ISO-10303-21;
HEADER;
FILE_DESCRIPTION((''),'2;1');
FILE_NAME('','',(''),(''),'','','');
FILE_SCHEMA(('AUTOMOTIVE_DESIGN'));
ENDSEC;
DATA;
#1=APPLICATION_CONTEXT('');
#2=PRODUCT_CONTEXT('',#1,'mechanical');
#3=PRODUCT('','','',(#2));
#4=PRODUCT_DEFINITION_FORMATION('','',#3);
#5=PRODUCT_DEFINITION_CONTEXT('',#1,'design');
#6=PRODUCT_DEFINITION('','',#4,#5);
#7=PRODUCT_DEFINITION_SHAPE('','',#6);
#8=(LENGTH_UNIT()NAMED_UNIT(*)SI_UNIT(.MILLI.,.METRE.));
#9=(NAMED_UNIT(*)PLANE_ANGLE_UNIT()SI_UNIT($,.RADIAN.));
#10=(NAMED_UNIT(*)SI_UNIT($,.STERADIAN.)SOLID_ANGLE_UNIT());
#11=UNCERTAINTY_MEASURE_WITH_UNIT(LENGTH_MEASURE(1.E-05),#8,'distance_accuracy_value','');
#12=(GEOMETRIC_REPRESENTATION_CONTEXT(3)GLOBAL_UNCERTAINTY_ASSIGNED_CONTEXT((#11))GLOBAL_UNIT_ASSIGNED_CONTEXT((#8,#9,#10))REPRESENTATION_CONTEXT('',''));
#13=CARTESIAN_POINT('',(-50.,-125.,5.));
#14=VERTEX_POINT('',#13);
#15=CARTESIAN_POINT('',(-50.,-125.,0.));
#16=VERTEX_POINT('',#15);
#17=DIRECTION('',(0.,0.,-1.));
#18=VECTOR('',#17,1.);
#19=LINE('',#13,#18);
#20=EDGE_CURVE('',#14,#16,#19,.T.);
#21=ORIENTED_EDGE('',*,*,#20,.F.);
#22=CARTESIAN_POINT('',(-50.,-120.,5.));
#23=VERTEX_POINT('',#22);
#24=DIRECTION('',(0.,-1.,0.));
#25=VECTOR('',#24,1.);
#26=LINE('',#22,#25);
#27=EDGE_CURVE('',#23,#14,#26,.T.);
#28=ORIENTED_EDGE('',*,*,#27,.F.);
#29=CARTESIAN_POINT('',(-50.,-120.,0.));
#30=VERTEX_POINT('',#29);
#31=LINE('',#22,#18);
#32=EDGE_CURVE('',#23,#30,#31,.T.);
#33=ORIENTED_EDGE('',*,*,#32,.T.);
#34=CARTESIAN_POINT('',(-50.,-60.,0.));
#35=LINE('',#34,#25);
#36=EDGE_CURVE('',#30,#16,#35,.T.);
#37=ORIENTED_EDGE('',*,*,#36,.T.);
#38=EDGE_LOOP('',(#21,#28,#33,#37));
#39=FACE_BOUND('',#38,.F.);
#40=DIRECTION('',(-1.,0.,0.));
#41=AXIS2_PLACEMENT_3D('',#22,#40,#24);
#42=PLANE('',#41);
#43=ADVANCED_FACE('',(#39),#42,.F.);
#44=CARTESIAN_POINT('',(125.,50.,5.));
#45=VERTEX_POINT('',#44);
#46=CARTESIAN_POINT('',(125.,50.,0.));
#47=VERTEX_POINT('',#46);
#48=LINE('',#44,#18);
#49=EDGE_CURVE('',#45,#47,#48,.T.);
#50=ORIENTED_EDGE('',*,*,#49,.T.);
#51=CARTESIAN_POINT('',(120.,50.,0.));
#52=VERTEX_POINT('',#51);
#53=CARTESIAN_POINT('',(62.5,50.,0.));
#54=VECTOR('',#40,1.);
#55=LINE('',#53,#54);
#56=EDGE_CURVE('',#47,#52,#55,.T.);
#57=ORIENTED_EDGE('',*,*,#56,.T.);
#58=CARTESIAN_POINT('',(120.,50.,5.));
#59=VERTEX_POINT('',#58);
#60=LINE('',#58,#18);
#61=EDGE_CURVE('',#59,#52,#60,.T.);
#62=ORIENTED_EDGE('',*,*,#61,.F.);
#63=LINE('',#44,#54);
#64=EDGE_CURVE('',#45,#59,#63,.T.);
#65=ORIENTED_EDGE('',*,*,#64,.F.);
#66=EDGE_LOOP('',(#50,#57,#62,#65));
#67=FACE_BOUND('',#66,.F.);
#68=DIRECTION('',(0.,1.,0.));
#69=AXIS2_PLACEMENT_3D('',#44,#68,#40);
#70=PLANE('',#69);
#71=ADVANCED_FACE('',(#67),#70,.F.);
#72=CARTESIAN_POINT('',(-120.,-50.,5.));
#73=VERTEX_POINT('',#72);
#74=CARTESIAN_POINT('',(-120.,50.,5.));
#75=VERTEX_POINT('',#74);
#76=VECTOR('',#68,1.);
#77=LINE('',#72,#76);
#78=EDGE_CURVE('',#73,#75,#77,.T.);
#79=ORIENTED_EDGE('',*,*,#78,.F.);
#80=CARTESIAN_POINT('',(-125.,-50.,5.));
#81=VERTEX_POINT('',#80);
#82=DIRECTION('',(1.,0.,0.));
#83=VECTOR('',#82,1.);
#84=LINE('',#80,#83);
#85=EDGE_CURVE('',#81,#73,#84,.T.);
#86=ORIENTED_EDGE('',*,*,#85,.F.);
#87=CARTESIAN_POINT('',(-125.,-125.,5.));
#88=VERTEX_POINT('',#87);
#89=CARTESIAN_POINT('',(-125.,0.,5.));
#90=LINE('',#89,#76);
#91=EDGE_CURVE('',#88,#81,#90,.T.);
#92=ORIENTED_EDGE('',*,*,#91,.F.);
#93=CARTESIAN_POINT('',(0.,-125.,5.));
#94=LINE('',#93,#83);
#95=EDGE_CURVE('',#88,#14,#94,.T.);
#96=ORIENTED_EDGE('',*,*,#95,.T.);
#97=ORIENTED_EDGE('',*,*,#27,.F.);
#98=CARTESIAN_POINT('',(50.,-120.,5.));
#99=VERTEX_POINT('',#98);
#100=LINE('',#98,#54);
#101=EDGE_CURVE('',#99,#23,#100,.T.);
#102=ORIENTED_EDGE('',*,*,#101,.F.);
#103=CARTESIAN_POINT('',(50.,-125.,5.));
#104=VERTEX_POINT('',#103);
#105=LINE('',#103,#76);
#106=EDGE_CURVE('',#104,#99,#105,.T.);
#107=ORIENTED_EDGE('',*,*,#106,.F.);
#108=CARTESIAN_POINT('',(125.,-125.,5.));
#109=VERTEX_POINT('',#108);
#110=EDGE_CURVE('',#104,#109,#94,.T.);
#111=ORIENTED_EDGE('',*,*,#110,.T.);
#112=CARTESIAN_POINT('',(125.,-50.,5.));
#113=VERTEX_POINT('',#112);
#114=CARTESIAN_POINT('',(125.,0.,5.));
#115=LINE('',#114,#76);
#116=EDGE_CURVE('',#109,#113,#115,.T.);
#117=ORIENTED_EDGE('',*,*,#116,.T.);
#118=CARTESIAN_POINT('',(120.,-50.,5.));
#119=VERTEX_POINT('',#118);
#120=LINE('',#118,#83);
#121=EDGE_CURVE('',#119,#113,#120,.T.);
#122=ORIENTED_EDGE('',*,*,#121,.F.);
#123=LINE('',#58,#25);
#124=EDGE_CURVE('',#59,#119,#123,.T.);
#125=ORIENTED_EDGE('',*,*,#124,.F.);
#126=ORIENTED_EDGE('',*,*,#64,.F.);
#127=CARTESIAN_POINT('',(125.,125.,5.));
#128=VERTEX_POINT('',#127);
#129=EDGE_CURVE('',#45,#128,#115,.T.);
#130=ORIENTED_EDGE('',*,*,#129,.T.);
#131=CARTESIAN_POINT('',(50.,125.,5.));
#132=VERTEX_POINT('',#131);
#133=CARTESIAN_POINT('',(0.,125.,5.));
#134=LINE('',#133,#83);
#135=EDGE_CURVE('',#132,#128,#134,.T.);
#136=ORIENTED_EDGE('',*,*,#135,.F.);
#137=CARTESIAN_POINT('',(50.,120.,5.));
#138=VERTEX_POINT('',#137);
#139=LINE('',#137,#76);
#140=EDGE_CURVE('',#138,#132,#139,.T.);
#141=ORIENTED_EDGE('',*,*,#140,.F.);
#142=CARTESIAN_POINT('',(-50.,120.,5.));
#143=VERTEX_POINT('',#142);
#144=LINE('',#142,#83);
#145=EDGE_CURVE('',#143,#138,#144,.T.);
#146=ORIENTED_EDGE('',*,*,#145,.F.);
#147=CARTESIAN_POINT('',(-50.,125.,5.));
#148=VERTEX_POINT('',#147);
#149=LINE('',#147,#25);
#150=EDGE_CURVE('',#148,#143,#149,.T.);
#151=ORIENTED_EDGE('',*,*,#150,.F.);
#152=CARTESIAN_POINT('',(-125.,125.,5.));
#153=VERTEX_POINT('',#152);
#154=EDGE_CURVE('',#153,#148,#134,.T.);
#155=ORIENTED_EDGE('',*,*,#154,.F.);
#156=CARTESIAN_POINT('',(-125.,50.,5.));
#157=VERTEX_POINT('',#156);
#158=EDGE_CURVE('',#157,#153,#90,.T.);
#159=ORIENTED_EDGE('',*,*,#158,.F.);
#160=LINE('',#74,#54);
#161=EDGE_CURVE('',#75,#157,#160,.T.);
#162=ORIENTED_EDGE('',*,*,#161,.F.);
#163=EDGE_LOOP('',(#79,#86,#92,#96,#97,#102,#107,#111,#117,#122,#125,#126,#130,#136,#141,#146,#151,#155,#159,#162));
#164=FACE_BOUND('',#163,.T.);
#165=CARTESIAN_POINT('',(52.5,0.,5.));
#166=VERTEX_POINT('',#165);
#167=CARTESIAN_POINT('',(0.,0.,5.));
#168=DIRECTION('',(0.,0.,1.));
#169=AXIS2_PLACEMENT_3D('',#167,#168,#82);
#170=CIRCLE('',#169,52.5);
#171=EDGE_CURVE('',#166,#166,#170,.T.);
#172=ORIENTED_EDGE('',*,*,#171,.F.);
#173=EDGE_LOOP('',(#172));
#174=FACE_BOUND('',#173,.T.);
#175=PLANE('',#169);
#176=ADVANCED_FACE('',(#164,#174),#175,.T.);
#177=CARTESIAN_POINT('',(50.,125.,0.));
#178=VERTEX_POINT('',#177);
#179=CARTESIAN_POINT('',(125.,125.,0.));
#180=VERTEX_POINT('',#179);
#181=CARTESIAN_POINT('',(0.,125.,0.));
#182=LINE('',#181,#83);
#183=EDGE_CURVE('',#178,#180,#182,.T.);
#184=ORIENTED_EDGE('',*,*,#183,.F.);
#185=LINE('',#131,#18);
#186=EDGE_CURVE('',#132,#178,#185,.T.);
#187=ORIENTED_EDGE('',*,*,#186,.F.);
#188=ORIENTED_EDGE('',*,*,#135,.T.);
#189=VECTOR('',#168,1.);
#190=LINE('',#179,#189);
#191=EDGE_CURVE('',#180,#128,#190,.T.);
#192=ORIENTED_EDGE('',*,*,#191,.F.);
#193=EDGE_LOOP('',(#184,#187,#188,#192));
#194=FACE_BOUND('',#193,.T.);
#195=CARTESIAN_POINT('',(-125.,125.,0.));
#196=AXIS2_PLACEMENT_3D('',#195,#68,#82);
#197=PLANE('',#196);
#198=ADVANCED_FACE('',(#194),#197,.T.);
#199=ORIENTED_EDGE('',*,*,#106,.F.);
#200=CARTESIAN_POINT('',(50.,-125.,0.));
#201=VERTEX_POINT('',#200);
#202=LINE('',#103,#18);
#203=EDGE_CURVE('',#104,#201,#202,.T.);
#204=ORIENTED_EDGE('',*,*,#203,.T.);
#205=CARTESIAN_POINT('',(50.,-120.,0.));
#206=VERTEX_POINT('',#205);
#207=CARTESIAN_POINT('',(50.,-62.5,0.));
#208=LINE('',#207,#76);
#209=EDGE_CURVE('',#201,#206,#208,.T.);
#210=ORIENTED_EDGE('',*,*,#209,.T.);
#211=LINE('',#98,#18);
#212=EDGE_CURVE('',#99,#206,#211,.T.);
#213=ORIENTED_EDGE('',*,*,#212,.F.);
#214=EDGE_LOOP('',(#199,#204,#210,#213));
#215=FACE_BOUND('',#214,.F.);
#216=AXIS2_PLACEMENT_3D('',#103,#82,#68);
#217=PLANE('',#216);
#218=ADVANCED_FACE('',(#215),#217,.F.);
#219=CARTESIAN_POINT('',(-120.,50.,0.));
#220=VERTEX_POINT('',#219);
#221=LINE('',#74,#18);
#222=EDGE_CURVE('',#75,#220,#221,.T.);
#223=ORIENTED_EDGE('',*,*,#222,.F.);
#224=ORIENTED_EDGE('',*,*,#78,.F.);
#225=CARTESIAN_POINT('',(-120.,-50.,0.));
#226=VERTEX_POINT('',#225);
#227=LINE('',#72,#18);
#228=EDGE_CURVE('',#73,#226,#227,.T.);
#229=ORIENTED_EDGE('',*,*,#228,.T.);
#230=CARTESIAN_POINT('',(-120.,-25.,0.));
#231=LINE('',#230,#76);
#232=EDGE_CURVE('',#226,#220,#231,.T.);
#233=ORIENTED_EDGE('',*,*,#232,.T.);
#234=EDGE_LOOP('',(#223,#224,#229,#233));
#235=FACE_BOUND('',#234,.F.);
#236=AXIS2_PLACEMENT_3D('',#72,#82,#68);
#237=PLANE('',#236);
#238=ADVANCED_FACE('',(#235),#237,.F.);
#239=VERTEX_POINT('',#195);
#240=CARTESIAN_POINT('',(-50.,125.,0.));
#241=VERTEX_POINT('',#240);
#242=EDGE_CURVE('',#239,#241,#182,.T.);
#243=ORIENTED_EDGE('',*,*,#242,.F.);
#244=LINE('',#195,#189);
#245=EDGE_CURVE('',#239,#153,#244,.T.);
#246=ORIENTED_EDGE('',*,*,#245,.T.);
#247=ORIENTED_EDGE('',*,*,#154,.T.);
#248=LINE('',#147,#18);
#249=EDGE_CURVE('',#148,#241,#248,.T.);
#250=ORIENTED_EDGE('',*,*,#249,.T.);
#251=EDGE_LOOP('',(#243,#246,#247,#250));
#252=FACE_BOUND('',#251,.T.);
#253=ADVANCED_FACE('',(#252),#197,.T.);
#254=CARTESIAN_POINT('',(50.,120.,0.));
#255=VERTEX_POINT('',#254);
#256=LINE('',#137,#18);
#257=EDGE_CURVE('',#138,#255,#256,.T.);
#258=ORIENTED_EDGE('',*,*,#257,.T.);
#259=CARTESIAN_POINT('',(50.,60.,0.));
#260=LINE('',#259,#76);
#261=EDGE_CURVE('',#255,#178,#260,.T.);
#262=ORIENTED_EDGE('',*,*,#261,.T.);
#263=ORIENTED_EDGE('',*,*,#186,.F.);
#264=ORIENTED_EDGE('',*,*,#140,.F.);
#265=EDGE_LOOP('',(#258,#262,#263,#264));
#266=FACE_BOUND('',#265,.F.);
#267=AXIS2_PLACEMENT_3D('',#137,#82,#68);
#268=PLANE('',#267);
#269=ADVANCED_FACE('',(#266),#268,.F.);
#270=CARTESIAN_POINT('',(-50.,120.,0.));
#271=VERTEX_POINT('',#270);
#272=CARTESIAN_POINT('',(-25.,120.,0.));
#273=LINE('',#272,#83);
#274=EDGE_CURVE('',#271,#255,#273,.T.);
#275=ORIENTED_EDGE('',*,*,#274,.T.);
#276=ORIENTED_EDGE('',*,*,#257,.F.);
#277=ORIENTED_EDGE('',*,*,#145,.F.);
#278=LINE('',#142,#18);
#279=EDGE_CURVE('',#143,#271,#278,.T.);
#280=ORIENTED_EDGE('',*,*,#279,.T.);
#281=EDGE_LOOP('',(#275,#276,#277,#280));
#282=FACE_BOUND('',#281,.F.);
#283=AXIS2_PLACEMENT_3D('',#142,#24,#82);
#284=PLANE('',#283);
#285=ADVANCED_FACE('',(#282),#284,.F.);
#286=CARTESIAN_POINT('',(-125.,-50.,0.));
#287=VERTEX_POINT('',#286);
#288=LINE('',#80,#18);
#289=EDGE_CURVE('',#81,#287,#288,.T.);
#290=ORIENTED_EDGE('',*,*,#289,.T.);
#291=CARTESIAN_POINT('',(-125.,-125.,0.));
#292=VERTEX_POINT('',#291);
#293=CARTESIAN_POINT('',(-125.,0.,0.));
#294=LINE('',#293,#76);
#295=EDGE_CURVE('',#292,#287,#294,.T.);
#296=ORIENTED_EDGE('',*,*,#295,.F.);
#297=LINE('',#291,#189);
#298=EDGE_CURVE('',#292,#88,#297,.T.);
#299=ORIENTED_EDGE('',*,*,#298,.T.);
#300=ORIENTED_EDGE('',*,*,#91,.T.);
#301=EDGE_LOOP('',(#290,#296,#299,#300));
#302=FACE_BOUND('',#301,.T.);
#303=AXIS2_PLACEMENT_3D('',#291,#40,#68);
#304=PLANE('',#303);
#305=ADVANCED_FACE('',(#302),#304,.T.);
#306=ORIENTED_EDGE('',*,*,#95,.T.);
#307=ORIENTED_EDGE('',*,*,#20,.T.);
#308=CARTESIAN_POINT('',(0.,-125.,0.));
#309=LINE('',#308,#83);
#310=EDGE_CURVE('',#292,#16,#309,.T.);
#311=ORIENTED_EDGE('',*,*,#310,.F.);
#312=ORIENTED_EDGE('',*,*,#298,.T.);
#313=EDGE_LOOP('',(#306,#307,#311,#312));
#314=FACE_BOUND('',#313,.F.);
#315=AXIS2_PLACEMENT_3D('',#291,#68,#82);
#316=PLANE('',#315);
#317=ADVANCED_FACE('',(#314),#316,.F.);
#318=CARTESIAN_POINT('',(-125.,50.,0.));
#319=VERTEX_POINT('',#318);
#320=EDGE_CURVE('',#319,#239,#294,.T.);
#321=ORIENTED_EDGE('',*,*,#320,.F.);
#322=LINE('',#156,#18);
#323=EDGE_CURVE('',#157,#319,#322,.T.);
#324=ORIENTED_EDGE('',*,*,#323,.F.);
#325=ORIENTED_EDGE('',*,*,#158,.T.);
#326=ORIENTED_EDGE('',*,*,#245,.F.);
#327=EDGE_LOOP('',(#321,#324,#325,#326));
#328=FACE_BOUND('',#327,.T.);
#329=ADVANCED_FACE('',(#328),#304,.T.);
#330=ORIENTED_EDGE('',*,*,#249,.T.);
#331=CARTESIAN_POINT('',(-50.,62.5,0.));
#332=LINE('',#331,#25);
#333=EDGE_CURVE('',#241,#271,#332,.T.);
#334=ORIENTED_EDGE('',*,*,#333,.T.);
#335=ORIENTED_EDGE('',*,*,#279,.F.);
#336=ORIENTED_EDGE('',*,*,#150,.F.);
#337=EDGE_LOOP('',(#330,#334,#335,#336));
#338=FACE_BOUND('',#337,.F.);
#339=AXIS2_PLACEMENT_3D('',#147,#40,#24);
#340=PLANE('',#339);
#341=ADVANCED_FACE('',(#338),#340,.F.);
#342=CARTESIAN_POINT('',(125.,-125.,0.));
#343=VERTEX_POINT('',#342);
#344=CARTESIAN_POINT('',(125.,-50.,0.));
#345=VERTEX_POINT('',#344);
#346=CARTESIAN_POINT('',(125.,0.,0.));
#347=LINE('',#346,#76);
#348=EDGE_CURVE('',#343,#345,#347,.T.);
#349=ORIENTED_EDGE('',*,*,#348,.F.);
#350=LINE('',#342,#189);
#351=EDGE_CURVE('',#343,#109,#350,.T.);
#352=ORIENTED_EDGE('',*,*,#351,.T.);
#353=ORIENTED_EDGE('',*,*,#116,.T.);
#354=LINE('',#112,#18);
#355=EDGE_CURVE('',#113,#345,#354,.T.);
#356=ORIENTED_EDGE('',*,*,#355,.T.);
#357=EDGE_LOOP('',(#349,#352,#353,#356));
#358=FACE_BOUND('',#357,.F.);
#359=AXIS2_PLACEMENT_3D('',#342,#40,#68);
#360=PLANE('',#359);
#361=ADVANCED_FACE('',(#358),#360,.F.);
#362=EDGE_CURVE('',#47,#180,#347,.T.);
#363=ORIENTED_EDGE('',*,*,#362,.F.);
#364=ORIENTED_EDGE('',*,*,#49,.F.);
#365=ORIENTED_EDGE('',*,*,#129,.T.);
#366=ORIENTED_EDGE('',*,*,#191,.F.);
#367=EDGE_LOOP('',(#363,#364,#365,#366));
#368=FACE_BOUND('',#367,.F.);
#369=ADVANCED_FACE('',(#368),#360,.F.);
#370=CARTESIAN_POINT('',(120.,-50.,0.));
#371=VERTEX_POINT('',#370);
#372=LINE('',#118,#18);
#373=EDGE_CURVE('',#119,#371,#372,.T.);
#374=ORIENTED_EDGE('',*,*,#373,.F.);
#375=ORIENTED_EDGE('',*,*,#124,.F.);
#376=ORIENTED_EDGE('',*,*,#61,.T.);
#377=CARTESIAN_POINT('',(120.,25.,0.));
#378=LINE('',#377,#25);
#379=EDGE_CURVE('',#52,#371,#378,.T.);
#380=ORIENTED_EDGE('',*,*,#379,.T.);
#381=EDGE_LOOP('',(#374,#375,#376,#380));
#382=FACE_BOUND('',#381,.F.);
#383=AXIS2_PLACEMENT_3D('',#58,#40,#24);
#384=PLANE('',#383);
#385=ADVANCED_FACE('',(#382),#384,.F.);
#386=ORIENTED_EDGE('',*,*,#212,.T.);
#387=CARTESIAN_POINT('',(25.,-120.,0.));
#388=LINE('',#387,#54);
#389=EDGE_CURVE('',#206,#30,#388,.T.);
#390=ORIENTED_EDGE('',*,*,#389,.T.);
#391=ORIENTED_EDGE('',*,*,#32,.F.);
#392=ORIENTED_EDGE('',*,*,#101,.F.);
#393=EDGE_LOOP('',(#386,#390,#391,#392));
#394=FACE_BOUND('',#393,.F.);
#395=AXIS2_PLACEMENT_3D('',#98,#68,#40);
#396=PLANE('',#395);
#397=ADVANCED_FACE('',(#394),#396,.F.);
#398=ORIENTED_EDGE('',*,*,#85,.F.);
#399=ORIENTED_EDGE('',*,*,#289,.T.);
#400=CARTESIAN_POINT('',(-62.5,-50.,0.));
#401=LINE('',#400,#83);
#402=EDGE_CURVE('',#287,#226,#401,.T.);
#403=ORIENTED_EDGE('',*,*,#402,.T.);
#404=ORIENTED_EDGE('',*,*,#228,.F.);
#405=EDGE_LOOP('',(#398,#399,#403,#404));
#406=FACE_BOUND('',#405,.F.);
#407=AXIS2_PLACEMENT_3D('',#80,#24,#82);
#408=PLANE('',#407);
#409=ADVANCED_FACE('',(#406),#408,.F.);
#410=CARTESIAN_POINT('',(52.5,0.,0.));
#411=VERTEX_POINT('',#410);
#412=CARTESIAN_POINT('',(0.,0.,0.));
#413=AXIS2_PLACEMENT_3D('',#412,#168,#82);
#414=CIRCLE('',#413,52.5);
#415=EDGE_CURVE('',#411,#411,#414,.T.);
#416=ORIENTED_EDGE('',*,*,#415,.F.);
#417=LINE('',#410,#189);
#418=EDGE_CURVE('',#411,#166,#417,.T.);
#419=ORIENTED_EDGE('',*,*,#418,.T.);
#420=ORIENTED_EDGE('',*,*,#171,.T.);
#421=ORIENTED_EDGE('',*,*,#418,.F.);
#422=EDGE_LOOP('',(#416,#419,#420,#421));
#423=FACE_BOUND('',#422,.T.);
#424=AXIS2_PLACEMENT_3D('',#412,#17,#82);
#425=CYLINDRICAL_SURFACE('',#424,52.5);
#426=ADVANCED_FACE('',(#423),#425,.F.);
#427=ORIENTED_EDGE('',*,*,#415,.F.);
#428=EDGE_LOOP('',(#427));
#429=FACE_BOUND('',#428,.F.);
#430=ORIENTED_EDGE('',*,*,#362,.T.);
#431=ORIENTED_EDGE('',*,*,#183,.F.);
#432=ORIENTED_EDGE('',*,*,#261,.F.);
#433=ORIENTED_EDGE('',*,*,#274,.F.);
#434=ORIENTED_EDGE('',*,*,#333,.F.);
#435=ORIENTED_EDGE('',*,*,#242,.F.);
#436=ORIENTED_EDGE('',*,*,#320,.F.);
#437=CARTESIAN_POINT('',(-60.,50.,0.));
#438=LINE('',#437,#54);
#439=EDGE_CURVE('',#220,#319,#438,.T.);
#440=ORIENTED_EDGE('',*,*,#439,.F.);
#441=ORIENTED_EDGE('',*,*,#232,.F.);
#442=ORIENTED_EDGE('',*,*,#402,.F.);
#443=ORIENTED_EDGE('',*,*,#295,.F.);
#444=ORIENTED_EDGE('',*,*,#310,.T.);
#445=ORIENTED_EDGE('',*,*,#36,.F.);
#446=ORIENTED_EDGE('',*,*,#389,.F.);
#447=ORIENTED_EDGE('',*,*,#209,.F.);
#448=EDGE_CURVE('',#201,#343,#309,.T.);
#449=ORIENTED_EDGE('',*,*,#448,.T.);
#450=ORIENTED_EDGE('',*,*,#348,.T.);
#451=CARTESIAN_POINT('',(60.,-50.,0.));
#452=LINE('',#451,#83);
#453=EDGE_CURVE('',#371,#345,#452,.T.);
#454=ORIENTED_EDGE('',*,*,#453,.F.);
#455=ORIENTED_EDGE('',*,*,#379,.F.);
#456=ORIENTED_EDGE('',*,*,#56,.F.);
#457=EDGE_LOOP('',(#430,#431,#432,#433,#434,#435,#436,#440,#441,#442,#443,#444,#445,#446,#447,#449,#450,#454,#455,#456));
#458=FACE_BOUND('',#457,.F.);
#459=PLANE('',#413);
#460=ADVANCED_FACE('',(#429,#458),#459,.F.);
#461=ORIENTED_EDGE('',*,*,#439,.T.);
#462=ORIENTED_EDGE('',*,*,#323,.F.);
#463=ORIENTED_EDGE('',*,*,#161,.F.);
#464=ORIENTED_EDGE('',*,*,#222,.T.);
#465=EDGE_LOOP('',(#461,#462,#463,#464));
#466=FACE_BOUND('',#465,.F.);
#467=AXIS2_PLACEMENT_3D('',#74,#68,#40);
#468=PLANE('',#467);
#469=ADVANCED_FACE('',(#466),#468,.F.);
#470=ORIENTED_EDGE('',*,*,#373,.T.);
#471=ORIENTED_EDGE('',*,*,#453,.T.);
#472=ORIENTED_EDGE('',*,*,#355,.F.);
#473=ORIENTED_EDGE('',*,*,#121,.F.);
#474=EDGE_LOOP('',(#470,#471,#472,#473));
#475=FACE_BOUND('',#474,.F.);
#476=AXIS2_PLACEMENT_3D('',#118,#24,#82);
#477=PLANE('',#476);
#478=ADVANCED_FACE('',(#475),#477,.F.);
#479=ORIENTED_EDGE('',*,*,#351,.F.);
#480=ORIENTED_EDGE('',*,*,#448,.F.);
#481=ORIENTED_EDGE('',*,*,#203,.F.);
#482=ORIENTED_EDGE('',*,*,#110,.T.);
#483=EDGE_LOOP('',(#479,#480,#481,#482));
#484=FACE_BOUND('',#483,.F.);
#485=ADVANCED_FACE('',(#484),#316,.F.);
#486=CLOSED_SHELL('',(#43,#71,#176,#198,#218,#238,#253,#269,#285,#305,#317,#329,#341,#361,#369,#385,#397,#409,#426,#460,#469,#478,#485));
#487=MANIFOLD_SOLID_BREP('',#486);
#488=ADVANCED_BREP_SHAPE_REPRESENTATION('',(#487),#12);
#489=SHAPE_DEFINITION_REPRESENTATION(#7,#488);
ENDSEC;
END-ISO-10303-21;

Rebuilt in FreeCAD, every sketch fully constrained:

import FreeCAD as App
import Part
import Sketcher

V = App.Vector


def add_polygon(sketch, points):
    """Adds a closed chain of lines whose ends are joined by coincident constraints."""
    first, n = sketch.GeometryCount, len(points)
    for a, b in zip(points, points[1:] + points[:1]):
        sketch.addGeometry(Part.LineSegment(App.Vector(*a, 0), App.Vector(*b, 0)), False)
    for i in range(n):
        sketch.addConstraint(Sketcher.Constraint("Coincident", first + i, 2, first + (i + 1) % n, 1))

doc = App.newDocument("Part")
body = doc.addObject("PartDesign::Body", "Body")

# Sketch on XY plane
sketch1 = doc.addObject("Sketcher::SketchObject", "Sketch")
body.addObject(sketch1)
sketch1.AttachmentSupport = (doc.XY_Plane, [""])
sketch1.MapMode = "FlatFace"
add_polygon(sketch1, [(-125, 125), (-125, -125), (125, -125), (125, 125)])  # lines 0-3
sketch1.addGeometry(Part.Circle(V(0, 0, 0), V(0, 0, 1), 52), False)  # 4
sketch1.addConstraint(Sketcher.Constraint("Vertical", 0))
sketch1.addConstraint(Sketcher.Constraint("Horizontal", 1))
sketch1.addConstraint(Sketcher.Constraint("Vertical", 2))
sketch1.addConstraint(Sketcher.Constraint("Horizontal", 3))
sketch1.addConstraint(Sketcher.Constraint("Coincident", 4, 3, -1, 1))
sketch1.addConstraint(Sketcher.Constraint("Symmetric", 0, 2, 2, 2, -1, 1))
sketch1.addConstraint(Sketcher.Constraint("Equal", 3, 0))
sketch1.addConstraint(Sketcher.Constraint("Diameter", 4, 105.0))
sketch1.addConstraint(Sketcher.Constraint("DistanceX", 1, 1, 1, 2, 250.0))
pad1 = doc.addObject("PartDesign::Pad", "Pad")
body.addObject(pad1)
pad1.Profile = sketch1
pad1.Length = 5

# Sketch on XY plane
sketch2 = doc.addObject("Sketcher::SketchObject", "Sketch001")
body.addObject(sketch2)
sketch2.AttachmentSupport = (doc.XY_Plane, [""])
sketch2.MapMode = "FlatFace"
sketch2.AttachmentOffset = App.Placement(V(0, 0, 5), App.Rotation())
add_polygon(sketch2, [(-50, 125), (-50, 120), (50, 120), (50, 125)])  # lines 0-3
add_polygon(sketch2, [(-120, 50), (-125, 50), (-125, -50), (-120, -50)])  # lines 4-7
add_polygon(sketch2, [(-50, -120), (-50, -125), (50, -125), (50, -120)])  # lines 8-11
add_polygon(sketch2, [(120, -50), (125, -50), (125, 50), (120, 50)])  # lines 12-15
sketch2.addConstraint(Sketcher.Constraint("Vertical", 0))
sketch2.addConstraint(Sketcher.Constraint("Horizontal", 1))
sketch2.addConstraint(Sketcher.Constraint("Vertical", 2))
sketch2.addConstraint(Sketcher.Constraint("Horizontal", 3))
sketch2.addConstraint(Sketcher.Constraint("Horizontal", 4))
sketch2.addConstraint(Sketcher.Constraint("Vertical", 5))
sketch2.addConstraint(Sketcher.Constraint("Horizontal", 6))
sketch2.addConstraint(Sketcher.Constraint("Vertical", 7))
sketch2.addConstraint(Sketcher.Constraint("Vertical", 8))
sketch2.addConstraint(Sketcher.Constraint("Horizontal", 9))
sketch2.addConstraint(Sketcher.Constraint("Vertical", 10))
sketch2.addConstraint(Sketcher.Constraint("Horizontal", 11))
sketch2.addConstraint(Sketcher.Constraint("Horizontal", 12))
sketch2.addConstraint(Sketcher.Constraint("Vertical", 13))
sketch2.addConstraint(Sketcher.Constraint("Horizontal", 14))
sketch2.addConstraint(Sketcher.Constraint("Vertical", 15))
sketch2.addConstraint(Sketcher.Constraint("Symmetric", 2, 2, 8, 2, -1, 1))
sketch2.addConstraint(Sketcher.Constraint("Symmetric", 0, 2, 10, 2, -1, 1))
sketch2.addConstraint(Sketcher.Constraint("Symmetric", 4, 2, 12, 2, -1, 1))
sketch2.addConstraint(Sketcher.Constraint("Symmetric", 6, 2, 14, 2, -1, 1))
sketch2.addConstraint(Sketcher.Constraint("Horizontal", 6, 2, 12, 2))
sketch2.addConstraint(Sketcher.Constraint("Vertical", 3, 2, 8, 2))
sketch2.addConstraint(Sketcher.Constraint("Equal", 14, 0))
sketch2.addConstraint(Sketcher.Constraint("Equal", 11, 5))
sketch2.addConstraint(Sketcher.Constraint("DistanceX", 1, 1, 1, 2, 100.0))
sketch2.addConstraint(Sketcher.Constraint("DistanceX", 4, 2, 4, 1, 5.0))
sketch2.addConstraint(Sketcher.Constraint("DistanceY", -1, 1, 0, 2, 120.0))
sketch2.addConstraint(Sketcher.Constraint("DistanceX", 4, 2, -1, 1, 125.0))
pocket1 = doc.addObject("PartDesign::Pocket", "Pocket")
body.addObject(pocket1)
pocket1.Profile = sketch2
pocket1.Type = "ThroughAll"

doc.recompute()
